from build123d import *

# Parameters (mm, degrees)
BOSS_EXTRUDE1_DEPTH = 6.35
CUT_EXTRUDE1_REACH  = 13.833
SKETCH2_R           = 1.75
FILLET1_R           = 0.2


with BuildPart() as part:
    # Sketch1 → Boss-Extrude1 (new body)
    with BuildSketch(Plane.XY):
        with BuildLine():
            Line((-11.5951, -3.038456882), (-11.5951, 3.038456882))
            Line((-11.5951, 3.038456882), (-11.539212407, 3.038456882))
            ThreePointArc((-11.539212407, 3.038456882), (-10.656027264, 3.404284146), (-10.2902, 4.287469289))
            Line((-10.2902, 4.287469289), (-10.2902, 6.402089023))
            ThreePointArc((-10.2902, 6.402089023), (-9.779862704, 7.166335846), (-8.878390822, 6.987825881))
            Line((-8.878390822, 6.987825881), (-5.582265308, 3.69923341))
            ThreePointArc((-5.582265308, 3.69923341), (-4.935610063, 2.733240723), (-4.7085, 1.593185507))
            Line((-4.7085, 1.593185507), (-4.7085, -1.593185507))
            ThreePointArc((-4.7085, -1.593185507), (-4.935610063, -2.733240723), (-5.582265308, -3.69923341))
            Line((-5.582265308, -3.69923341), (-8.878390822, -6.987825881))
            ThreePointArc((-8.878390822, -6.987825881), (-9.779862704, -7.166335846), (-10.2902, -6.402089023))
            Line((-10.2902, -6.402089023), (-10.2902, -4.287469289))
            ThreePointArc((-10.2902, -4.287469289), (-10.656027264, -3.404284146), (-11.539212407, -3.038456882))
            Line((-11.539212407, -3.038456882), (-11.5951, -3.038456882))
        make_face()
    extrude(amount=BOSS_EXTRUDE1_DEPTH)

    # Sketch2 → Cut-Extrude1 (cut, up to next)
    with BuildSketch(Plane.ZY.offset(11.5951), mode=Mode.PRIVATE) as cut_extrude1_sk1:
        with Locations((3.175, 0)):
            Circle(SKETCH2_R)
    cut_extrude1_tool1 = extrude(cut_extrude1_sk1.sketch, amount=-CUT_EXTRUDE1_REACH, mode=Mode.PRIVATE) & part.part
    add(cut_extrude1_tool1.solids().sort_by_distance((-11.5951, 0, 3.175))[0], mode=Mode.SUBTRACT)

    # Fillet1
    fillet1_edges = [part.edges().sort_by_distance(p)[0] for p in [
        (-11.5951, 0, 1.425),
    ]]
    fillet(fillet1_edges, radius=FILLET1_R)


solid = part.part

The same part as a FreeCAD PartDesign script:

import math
import FreeCAD as App
import Part
import Sketcher

V = App.Vector


def edges_at(feature, points):
    """Names of the edges that pass closest to the given points."""
    edges = feature.Shape.Edges
    near = lambda p: min(range(len(edges)), key=lambda i: edges[i].distToShape(Part.Vertex(*p))[0])
    return sorted({f"Edge{near(p) + 1}" for p in points})

doc = App.newDocument("Part")
body = doc.addObject("PartDesign::Body", "Body")

# Sketch on XY plane
sketch1 = doc.addObject("Sketcher::SketchObject", "Sketch")
body.addObject(sketch1)
sketch1.AttachmentSupport = (doc.XY_Plane, [""])
sketch1.MapMode = "FlatFace"
sketch1.addGeometry(Part.LineSegment(V(-11.6, 3.04, 0), V(-11.6, -3.04, 0)), False)
sketch1.addGeometry(Part.LineSegment(V(-11.6, -3.04, 0), V(-11.54, -3.04, 0)), False)
sketch1.addGeometry(Part.ArcOfCircle(Part.Circle(V(-11.54, -4.29, 0), V(0, 0, 1), 1.25), math.radians(0), math.radians(90)), False)
sketch1.addGeometry(Part.LineSegment(V(-10.29, -4.29, 0), V(-10.29, -6.4, 0)), False)
sketch1.addGeometry(Part.ArcOfCircle(Part.Circle(V(-9.46, -6.4, 0), V(0, 0, 1), 0.83), math.radians(180), math.radians(315)), False)
sketch1.addGeometry(Part.LineSegment(V(-8.88, -6.99, 0), V(-5.58, -3.7, 0)), False)
sketch1.addGeometry(Part.ArcOfCircle(Part.Circle(V(-7.68, -1.59, 0), V(0, 0, 1), 2.97), math.radians(-45), math.radians(0)), False)
sketch1.addGeometry(Part.LineSegment(V(-4.71, -1.59, 0), V(-4.71, 1.59, 0)), False)
sketch1.addGeometry(Part.ArcOfCircle(Part.Circle(V(-7.68, 1.59, 0), V(0, 0, 1), 2.97), math.radians(0), math.radians(45)), False)
sketch1.addGeometry(Part.LineSegment(V(-5.58, 3.7, 0), V(-8.88, 6.99, 0)), False)
sketch1.addGeometry(Part.ArcOfCircle(Part.Circle(V(-9.46, 6.4, 0), V(0, 0, 1), 0.83), math.radians(45), math.radians(180)), False)
sketch1.addGeometry(Part.LineSegment(V(-10.29, 6.4, 0), V(-10.29, 4.29, 0)), False)
sketch1.addGeometry(Part.ArcOfCircle(Part.Circle(V(-11.54, 4.29, 0), V(0, 0, 1), 1.25), math.radians(-90), math.radians(0)), False)
sketch1.addGeometry(Part.LineSegment(V(-11.54, 3.04, 0), V(-11.6, 3.04, 0)), False)
sketch1.addConstraint(Sketcher.Constraint("Coincident", 0, 2, 1, 1))
sketch1.addConstraint(Sketcher.Constraint("Tangent", 1, 2, 2, 2))
sketch1.addConstraint(Sketcher.Constraint("Tangent", 2, 1, 3, 1))
sketch1.addConstraint(Sketcher.Constraint("Tangent", 3, 2, 4, 1))
sketch1.addConstraint(Sketcher.Constraint("Tangent", 4, 2, 5, 1))
sketch1.addConstraint(Sketcher.Constraint("Tangent", 5, 2, 6, 1))
sketch1.addConstraint(Sketcher.Constraint("Tangent", 6, 2, 7, 1))
sketch1.addConstraint(Sketcher.Constraint("Tangent", 7, 2, 8, 1))
sketch1.addConstraint(Sketcher.Constraint("Tangent", 8, 2, 9, 1))
sketch1.addConstraint(Sketcher.Constraint("Tangent", 9, 2, 10, 1))
sketch1.addConstraint(Sketcher.Constraint("Tangent", 10, 2, 11, 1))
sketch1.addConstraint(Sketcher.Constraint("Tangent", 11, 2, 12, 2))
sketch1.addConstraint(Sketcher.Constraint("Tangent", 12, 1, 13, 1))
sketch1.addConstraint(Sketcher.Constraint("Coincident", 13, 2, 0, 1))
sketch1.addConstraint(Sketcher.Constraint("Vertical", 0))
sketch1.addConstraint(Sketcher.Constraint("Horizontal", 1))
sketch1.addConstraint(Sketcher.Constraint("Vertical", 3))
sketch1.addConstraint(Sketcher.Constraint("Vertical", 7))
sketch1.addConstraint(Sketcher.Constraint("Vertical", 11))
sketch1.addConstraint(Sketcher.Constraint("Horizontal", 13))
sketch1.addConstraint(Sketcher.Constraint("Equal", 6, 8))
sketch1.addConstraint(Sketcher.Constraint("Equal", 4, 10))
sketch1.addConstraint(Sketcher.Constraint("Equal", 2, 12))
sketch1.addConstraint(Sketcher.Constraint("Symmetric", 4, 3, 10, 3, -1))
sketch1.addConstraint(Sketcher.Constraint("Vertical", 5, 2, 8, 2))
sketch1.addConstraint(Sketcher.Constraint("Equal", 3, 11))
sketch1.addConstraint(Sketcher.Constraint("Radius", 6, 2.975))
sketch1.addConstraint(Sketcher.Constraint("Radius", 4, 0.827411))
sketch1.addConstraint(Sketcher.Constraint("Radius", 2, 1.249012))
sketch1.addConstraint(Sketcher.Constraint("Distance", 5, 4.656102))
sketch1.addConstraint(Sketcher.Constraint("DistanceY", 3, 2, 3, 1, 2.11462))
sketch1.addConstraint(Sketcher.Constraint("DistanceY", 7, 1, 7, 2, 3.186371))
sketch1.addConstraint(Sketcher.Constraint("DistanceX", 6, 3, -1, 1, 7.6835))
sketch1.addConstraint(Sketcher.Constraint("DistanceX", 0, 2, -1, 1, 11.5951))
sketch1.addConstraint(Sketcher.Constraint("DistanceX", 2, 1, -1, 1, 10.2902))
pad1 = doc.addObject("PartDesign::Pad", "Pad")
body.addObject(pad1)
pad1.Profile = sketch1
pad1.Length = 6.35

# Sketch on YZ plane
sketch2 = doc.addObject("Sketcher::SketchObject", "Sketch001")
body.addObject(sketch2)
sketch2.AttachmentSupport = (doc.YZ_Plane, [""])
sketch2.MapMode = "FlatFace"
sketch2.AttachmentOffset = App.Placement(V(0, 0, -11.5951), App.Rotation())
sketch2.addGeometry(Part.Circle(V(0, 3.2, 0), V(0, 0, 1), 1.8), False)
sketch2.addConstraint(Sketcher.Constraint("PointOnObject", 0, 3, -2))
sketch2.addConstraint(Sketcher.Constraint("Diameter", 0, 3.5))
sketch2.addConstraint(Sketcher.Constraint("DistanceY", -1, 1, 0, 3, 3.175))
pocket1 = doc.addObject("PartDesign::Pocket", "Pocket")
body.addObject(pocket1)
pocket1.Profile = sketch2
pocket1.Type = "UpToFirst"
pocket1.Reversed = True
doc.recompute()

fillet = doc.addObject("PartDesign::Fillet", "Fillet")
body.addObject(fillet)
fillet.Base = (pocket1, edges_at(pocket1, [(-11.595, 0, 1.425)]))
fillet.Radius = 0.2

doc.recompute()
